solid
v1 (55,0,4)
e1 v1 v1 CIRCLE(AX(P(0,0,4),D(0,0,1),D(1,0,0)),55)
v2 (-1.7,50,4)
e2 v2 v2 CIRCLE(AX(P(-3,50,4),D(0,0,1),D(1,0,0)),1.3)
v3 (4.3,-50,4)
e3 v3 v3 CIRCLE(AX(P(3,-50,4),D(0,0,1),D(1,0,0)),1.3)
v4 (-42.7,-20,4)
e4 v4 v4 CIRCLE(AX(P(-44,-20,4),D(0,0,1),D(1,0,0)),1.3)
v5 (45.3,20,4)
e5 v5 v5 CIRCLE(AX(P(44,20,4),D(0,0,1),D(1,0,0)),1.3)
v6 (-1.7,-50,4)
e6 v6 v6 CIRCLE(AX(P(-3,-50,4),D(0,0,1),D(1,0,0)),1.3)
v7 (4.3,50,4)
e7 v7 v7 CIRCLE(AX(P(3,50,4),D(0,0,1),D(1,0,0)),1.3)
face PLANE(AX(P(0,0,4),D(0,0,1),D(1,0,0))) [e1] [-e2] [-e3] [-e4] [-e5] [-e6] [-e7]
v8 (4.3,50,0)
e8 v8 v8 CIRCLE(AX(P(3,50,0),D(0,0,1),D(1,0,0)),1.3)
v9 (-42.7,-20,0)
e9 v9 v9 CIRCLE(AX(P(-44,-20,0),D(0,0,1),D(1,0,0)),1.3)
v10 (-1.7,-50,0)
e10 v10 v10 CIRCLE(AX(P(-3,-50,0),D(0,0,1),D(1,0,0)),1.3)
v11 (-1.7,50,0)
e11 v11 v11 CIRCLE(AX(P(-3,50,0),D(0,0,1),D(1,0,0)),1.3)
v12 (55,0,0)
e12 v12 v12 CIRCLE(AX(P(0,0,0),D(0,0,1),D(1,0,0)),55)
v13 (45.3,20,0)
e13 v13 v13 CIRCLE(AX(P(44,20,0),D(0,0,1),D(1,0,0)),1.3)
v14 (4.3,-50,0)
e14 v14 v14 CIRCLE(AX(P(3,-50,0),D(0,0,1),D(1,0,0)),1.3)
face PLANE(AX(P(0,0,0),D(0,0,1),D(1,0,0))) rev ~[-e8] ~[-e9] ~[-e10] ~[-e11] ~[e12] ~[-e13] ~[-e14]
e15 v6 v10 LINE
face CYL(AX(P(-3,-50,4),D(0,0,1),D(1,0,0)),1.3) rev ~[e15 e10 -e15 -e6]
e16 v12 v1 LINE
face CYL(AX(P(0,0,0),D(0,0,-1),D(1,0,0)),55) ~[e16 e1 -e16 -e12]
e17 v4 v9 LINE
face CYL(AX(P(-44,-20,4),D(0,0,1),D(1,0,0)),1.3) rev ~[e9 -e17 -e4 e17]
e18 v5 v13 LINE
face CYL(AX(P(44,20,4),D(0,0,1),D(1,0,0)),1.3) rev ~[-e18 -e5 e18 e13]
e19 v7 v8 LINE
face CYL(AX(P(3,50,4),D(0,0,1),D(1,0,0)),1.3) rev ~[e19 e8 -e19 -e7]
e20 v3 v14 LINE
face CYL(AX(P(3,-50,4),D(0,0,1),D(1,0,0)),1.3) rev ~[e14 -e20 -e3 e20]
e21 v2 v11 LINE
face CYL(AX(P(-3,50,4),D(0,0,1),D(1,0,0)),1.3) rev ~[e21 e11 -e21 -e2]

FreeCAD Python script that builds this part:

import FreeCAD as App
import Part
import Sketcher
from FreeCAD import Vector
Q = App.Units.Quantity

doc = App.newDocument("Part")
params = doc.addObject("Spreadsheet::Sheet", "Params")
for row, (alias, value) in enumerate([
    ("sketch1_diameter", "110 mm"),
    ("pad1_length", "4 mm"),
    ("sketch2_diameter", "2.6 mm"),
    ("pocket1_length", "5 mm"),
    ("sketch3_diameter", "2.6 mm"),
    ("pocket2_length", "5 mm"),
], start=1):
    params.set(f"A{row}", alias)
    params.set(f"B{row}", "=" + value)
    params.setAlias(f"B{row}", alias)

body = doc.addObject("PartDesign::Body", "Body")

sketch1 = doc.addObject("Sketcher::SketchObject", "Sketch")
body.addObject(sketch1)
sketch1.AttachmentSupport = (doc.XY_Plane, [""])
sketch1.MapMode = "FlatFace"
sketch1.addGeometry(Part.Circle(Vector(0, 0, 0), Vector(0, 0, 1), 55), False)
sketch1.addConstraint(Sketcher.Constraint("Coincident", 0, 3, -1, 1))
sketch1.addConstraint(Sketcher.Constraint("Diameter", 0, Q("110 mm")))
sketch1.setExpression("Constraints[1]", "Params.sketch1_diameter")
pad1 = doc.addObject("PartDesign::Pad", "Pad")
body.addObject(pad1)
pad1.Profile = sketch1
pad1.setExpression("Length", "Params.pad1_length")

sketch2 = doc.addObject("Sketcher::SketchObject", "Sketch001")
body.addObject(sketch2)
sketch2.AttachmentSupport = (doc.XY_Plane, [""])
sketch2.MapMode = "FlatFace"
sketch2.AttachmentOffset = App.Placement(Vector(0, 0, 4), App.Rotation())
sketch2.addGeometry(Part.Circle(Vector(-44, -20, 0), Vector(0, 0, 1), 1.3), False)
sketch2.addGeometry(Part.Circle(Vector(44, 20, 0), Vector(0, 0, 1), 1.3), False)
sketch2.addConstraint(Sketcher.Constraint("Equal", 0, 1))
sketch2.addConstraint(Sketcher.Constraint("Symmetric", 0, 3, 1, 3, -1, 1))
sketch2.addConstraint(Sketcher.Constraint("Diameter", 0, Q("2.6 mm")))
sketch2.addConstraint(Sketcher.Constraint("DistanceX", 0, 3, -1, 1, Q("44 mm")))
sketch2.addConstraint(Sketcher.Constraint("DistanceY", 0, 3, -1, 1, Q("20 mm")))
sketch2.setExpression("Constraints[2]", "Params.sketch2_diameter")
pocket1 = doc.addObject("PartDesign::Pocket", "Pocket")
body.addObject(pocket1)
pocket1.Profile = sketch2
pocket1.setExpression("Length", "Params.pocket1_length")

sketch3 = doc.addObject("Sketcher::SketchObject", "Sketch002")
body.addObject(sketch3)
sketch3.AttachmentSupport = (doc.XY_Plane, [""])
sketch3.MapMode = "FlatFace"
sketch3.AttachmentOffset = App.Placement(Vector(0, 0, 4), App.Rotation())
sketch3.addGeometry(Part.Circle(Vector(3, -50, 0), Vector(0, 0, 1), 1.3), False)
sketch3.addGeometry(Part.Circle(Vector(-3, -50, 0), Vector(0, 0, 1), 1.3), False)
sketch3.addGeometry(Part.Circle(Vector(-3, 50, 0), Vector(0, 0, 1), 1.3), False)
sketch3.addGeometry(Part.Circle(Vector(3, 50, 0), Vector(0, 0, 1), 1.3), False)
sketch3.addConstraint(Sketcher.Constraint("Equal", 0, 1))
sketch3.addConstraint(Sketcher.Constraint("Equal", 1, 2))
sketch3.addConstraint(Sketcher.Constraint("Equal", 2, 3))
sketch3.addConstraint(Sketcher.Constraint("Symmetric", 0, 3, 2, 3, -1, 1))
sketch3.addConstraint(Sketcher.Constraint("Symmetric", 1, 3, 3, 3, -1, 1))
sketch3.addConstraint(Sketcher.Constraint("Symmetric", 0, 3, 1, 3, -2))
sketch3.addConstraint(Sketcher.Constraint("Diameter", 0, Q("2.6 mm")))
sketch3.addConstraint(Sketcher.Constraint("DistanceX", -1, 1, 0, 3, Q("3 mm")))
sketch3.addConstraint(Sketcher.Constraint("DistanceY", 0, 3, -1, 1, Q("50 mm")))
sketch3.setExpression("Constraints[6]", "Params.sketch3_diameter")
pocket2 = doc.addObject("PartDesign::Pocket", "Pocket001")
body.addObject(pocket2)
pocket2.Profile = sketch3
pocket2.setExpression("Length", "Params.pocket2_length")

doc.recompute()
